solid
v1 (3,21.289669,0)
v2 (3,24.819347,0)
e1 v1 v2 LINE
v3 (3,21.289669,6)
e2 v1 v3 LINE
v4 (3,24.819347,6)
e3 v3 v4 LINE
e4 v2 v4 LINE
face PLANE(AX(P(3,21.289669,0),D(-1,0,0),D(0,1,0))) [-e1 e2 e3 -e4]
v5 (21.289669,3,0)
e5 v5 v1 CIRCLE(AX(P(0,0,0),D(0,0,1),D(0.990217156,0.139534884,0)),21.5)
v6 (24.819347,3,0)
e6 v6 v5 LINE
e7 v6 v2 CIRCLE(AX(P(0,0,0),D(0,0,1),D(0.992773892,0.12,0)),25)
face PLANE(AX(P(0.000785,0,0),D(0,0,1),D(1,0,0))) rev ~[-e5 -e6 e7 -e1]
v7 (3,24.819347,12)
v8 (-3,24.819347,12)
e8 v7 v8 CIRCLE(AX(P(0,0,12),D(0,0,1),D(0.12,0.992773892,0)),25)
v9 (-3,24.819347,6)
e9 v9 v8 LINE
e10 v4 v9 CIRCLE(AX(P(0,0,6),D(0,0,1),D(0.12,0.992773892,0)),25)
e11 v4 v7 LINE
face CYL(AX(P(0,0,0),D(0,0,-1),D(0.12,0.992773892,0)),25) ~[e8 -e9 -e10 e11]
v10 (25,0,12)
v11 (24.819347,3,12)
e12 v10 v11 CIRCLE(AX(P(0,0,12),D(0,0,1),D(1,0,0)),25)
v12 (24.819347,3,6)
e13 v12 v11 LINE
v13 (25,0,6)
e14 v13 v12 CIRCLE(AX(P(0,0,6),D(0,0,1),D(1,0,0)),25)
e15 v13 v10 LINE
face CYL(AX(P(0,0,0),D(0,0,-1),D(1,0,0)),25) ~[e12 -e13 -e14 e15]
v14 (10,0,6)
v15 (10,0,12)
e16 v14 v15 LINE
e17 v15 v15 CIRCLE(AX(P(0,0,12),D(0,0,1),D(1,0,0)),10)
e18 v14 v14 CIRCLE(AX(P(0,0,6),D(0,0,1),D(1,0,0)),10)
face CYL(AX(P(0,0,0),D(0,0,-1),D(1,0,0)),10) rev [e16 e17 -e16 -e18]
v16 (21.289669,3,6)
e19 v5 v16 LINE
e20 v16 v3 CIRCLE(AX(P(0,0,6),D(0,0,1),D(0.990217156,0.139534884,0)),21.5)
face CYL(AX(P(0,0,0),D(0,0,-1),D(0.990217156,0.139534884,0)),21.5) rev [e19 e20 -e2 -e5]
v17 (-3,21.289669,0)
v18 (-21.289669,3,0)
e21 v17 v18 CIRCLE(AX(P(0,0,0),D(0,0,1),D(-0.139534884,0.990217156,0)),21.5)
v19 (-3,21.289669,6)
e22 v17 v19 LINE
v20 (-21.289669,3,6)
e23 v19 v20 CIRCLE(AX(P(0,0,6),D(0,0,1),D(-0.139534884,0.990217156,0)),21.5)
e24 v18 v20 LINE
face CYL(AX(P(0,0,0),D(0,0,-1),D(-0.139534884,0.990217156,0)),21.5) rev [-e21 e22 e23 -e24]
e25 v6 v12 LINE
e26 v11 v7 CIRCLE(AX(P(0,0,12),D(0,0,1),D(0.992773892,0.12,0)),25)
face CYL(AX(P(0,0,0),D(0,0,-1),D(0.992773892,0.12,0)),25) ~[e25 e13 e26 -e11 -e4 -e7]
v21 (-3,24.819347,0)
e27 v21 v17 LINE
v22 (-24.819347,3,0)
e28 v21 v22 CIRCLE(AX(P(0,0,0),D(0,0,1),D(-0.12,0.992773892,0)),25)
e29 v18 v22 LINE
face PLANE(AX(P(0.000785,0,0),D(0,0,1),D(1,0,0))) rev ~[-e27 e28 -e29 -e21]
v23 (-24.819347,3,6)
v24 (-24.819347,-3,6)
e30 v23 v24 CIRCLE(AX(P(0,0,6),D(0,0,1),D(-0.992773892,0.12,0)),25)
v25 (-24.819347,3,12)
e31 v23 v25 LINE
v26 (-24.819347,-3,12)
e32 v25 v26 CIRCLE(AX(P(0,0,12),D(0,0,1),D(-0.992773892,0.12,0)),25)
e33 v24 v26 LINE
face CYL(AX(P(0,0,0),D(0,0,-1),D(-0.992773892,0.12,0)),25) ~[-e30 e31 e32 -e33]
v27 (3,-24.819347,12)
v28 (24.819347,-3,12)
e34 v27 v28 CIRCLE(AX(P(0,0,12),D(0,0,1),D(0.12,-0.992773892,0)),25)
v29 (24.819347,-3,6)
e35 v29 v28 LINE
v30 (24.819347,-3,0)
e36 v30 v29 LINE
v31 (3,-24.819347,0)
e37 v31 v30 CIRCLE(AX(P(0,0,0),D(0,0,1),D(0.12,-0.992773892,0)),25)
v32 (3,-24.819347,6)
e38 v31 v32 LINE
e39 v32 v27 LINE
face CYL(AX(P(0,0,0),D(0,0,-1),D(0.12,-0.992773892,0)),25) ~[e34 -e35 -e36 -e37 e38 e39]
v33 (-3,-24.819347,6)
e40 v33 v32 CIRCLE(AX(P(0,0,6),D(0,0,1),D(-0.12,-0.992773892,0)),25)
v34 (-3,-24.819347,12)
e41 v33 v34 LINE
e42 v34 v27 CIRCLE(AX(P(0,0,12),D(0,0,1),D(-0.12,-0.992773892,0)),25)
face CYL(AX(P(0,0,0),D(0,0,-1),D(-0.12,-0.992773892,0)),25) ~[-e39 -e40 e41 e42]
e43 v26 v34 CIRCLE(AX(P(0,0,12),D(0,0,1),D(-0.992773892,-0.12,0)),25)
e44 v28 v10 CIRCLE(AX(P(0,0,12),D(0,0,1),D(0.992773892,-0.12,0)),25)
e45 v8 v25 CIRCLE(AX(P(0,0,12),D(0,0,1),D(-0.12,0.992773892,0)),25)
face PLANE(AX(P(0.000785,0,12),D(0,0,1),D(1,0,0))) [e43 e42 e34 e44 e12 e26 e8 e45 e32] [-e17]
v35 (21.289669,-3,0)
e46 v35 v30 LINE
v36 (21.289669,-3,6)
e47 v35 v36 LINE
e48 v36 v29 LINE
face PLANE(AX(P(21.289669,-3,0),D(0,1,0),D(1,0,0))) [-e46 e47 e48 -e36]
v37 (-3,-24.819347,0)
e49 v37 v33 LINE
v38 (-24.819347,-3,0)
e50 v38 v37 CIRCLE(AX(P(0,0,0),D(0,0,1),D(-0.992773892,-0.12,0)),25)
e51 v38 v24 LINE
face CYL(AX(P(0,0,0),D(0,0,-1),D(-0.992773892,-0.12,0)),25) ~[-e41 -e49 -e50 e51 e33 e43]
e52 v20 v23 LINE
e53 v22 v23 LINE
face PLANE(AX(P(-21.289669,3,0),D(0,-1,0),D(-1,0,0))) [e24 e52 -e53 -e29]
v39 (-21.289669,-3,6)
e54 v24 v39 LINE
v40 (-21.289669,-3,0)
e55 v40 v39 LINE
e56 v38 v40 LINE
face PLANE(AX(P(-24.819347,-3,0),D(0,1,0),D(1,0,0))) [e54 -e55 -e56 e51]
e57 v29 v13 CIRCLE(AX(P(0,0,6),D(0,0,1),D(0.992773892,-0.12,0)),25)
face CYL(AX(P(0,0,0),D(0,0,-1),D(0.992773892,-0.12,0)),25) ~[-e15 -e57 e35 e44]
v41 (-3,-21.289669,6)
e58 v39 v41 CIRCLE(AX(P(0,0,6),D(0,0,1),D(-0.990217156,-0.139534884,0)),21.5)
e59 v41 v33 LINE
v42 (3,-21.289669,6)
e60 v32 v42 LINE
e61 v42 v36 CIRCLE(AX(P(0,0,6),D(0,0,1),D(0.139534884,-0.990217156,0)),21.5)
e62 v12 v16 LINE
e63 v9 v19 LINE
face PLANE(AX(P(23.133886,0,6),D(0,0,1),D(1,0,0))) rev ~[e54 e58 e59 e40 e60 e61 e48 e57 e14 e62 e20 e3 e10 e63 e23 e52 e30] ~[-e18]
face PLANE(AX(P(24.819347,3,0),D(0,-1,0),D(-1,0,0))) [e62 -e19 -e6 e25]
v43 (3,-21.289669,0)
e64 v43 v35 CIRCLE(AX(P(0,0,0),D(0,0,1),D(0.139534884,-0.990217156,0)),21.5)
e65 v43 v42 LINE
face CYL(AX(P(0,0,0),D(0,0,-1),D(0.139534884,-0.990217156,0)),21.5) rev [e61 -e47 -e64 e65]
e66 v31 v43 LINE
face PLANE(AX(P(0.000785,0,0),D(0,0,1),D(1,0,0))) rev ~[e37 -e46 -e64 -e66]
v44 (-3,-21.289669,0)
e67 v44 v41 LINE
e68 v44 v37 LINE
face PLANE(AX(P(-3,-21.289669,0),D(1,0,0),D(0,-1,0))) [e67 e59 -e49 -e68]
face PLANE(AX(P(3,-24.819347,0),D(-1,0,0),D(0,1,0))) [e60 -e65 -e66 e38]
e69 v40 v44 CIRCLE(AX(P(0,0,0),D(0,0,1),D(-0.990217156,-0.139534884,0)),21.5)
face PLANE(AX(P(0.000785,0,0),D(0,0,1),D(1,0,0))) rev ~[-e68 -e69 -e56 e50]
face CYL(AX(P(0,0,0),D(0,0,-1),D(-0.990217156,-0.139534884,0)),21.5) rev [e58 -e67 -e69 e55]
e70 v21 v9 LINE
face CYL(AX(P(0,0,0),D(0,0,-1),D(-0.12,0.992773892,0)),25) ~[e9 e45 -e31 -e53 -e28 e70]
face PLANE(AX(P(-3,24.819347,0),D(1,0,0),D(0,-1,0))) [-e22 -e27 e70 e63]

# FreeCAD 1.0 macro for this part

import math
import FreeCAD as App
import Part
import Sketcher

V = App.Vector
Q = App.Units.Quantity

doc = App.newDocument("Part")
body = doc.addObject("PartDesign::Body", "Body")

# Sketch on XY plane
sketch1 = body.newObject("Sketcher::SketchObject", "Sketch")
sketch1.AttachmentSupport = (doc.getObject("XY_Plane"), [""])
sketch1.MapMode = "FlatFace"
sketch1.addGeometry([
    Part.ArcOfCircle(Part.Circle(V(0, 0, 0), V(0, 0, 1), 25), math.radians(6.892103), math.radians(83.107897)),  # 0
    Part.ArcOfCircle(Part.Circle(V(0, 0, 0), V(0, 0, 1), 25), math.radians(83.107897), math.radians(96.892103)),  # 1
    Part.ArcOfCircle(Part.Circle(V(0, 0, 0), V(0, 0, 1), 25), math.radians(96.892103), math.radians(173.107897)),  # 2
    Part.ArcOfCircle(Part.Circle(V(0, 0, 0), V(0, 0, 1), 25), math.radians(173.107897), math.radians(186.892103)),  # 3
    Part.ArcOfCircle(Part.Circle(V(0, 0, 0), V(0, 0, 1), 25), math.radians(-173.107897), math.radians(-96.892103)),  # 4
    Part.ArcOfCircle(Part.Circle(V(0, 0, 0), V(0, 0, 1), 25), math.radians(-96.892103), math.radians(-83.107897)),  # 5
    Part.ArcOfCircle(Part.Circle(V(0, 0, 0), V(0, 0, 1), 25), math.radians(-83.107897), math.radians(-6.892103)),  # 6
    Part.ArcOfCircle(Part.Circle(V(0, 0, 0), V(0, 0, 1), 25), math.radians(-6.892103), math.radians(0)),  # 7
    Part.ArcOfCircle(Part.Circle(V(0, 0, 0), V(0, 0, 1), 25), math.radians(0), math.radians(6.892103)),  # 8
    Part.Circle(V(0, 0, 0), V(0, 0, 1), 10),  # 9
], False)
sketch1.addConstraint([
    Sketcher.Constraint("Tangent", 0, 2, 1, 1),
    Sketcher.Constraint("Tangent", 1, 2, 2, 1),
    Sketcher.Constraint("Tangent", 2, 2, 3, 1),
    Sketcher.Constraint("Tangent", 3, 2, 4, 1),
    Sketcher.Constraint("Tangent", 4, 2, 5, 1),
    Sketcher.Constraint("Tangent", 5, 2, 6, 1),
    Sketcher.Constraint("Tangent", 6, 2, 7, 1),
    Sketcher.Constraint("Tangent", 7, 2, 8, 1),
    Sketcher.Constraint("Tangent", 8, 2, 0, 1),
    Sketcher.Constraint("Coincident", 0, 3, -1, 1),
    Sketcher.Constraint("Coincident", 2, 3, -1, 1),
    Sketcher.Constraint("Coincident", 4, 3, -1, 1),
    Sketcher.Constraint("Coincident", 6, 3, -1, 1),
    Sketcher.Constraint("Coincident", 9, 3, -1, 1),
    Sketcher.Constraint("PointOnObject", 7, 2, -1),
    Sketcher.Constraint("Horizontal", 0, 2, 1, 2),
    Sketcher.Constraint("Horizontal", 4, 2, 5, 2),
    Sketcher.Constraint("Horizontal", 3, 2, 6, 2),
    Sketcher.Constraint("Horizontal", 2, 2, 8, 2),
    Sketcher.Constraint("Vertical", 2, 2, 3, 2),
    Sketcher.Constraint("Vertical", 1, 2, 4, 2),
    Sketcher.Constraint("Diameter", 9, Q("20 mm")),
    Sketcher.Constraint("Radius", 0, Q("25 mm")),
    Sketcher.Constraint("DistanceX", -1, 1, 0, 2, Q("3 mm")),
    Sketcher.Constraint("DistanceY", -1, 1, 2, 2, Q("3 mm")),
])
pad1 = body.newObject("PartDesign::Pad", "Pad")
pad1.Profile = sketch1
pad1.Length = 12

# Sketch on XY plane
sketch2 = body.newObject("Sketcher::SketchObject", "Sketch001")
sketch2.AttachmentSupport = (doc.getObject("XY_Plane"), [""])
sketch2.MapMode = "FlatFace"
sketch2.addGeometry([
    Part.ArcOfCircle(Part.Circle(V(0, 0, 0), V(0, 0, 1), 21.5), math.radians(0), math.radians(8.020933)),  # 0
    Part.ArcOfCircle(Part.Circle(V(0, 0, 0), V(0, 0, 1), 21.5), math.radians(8.020933), math.radians(81.979067)),  # 1
    Part.ArcOfCircle(Part.Circle(V(0, 0, 0), V(0, 0, 1), 21.5), math.radians(81.979067), math.radians(98.020933)),  # 2
    Part.ArcOfCircle(Part.Circle(V(0, 0, 0), V(0, 0, 1), 21.5), math.radians(98.020933), math.radians(171.979067)),  # 3
    Part.ArcOfCircle(Part.Circle(V(0, 0, 0), V(0, 0, 1), 21.5), math.radians(171.979067), math.radians(188.020933)),  # 4
    Part.ArcOfCircle(Part.Circle(V(0, 0, 0), V(0, 0, 1), 21.5), math.radians(-171.979067), math.radians(-98.020933)),  # 5
    Part.ArcOfCircle(Part.Circle(V(0, 0, 0), V(0, 0, 1), 21.5), math.radians(-98.020933), math.radians(-81.979067)),  # 6
    Part.ArcOfCircle(Part.Circle(V(0, 0, 0), V(0, 0, 1), 21.5), math.radians(-81.979067), math.radians(-8.020933)),  # 7
    Part.ArcOfCircle(Part.Circle(V(0, 0, 0), V(0, 0, 1), 21.5), math.radians(-8.020933), math.radians(0)),  # 8
    Part.Circle(V(0, 0, 0), V(0, 0, 1), 10),  # 9
], False)
sketch2.addConstraint([
    Sketcher.Constraint("Tangent", 0, 2, 1, 1),
    Sketcher.Constraint("Tangent", 1, 2, 2, 1),
    Sketcher.Constraint("Tangent", 2, 2, 3, 1),
    Sketcher.Constraint("Tangent", 3, 2, 4, 1),
    Sketcher.Constraint("Tangent", 4, 2, 5, 1),
    Sketcher.Constraint("Tangent", 5, 2, 6, 1),
    Sketcher.Constraint("Tangent", 6, 2, 7, 1),
    Sketcher.Constraint("Tangent", 7, 2, 8, 1),
    Sketcher.Constraint("Tangent", 8, 2, 0, 1),
    Sketcher.Constraint("Coincident", 0, 3, -1, 1),
    Sketcher.Constraint("Coincident", 2, 3, -1, 1),
    Sketcher.Constraint("Coincident", 4, 3, -1, 1),
    Sketcher.Constraint("Coincident", 6, 3, -1, 1),
    Sketcher.Constraint("Coincident", 9, 3, -1, 1),
    Sketcher.Constraint("PointOnObject", 8, 2, -1),
    Sketcher.Constraint("Horizontal", 1, 2, 2, 2),
    Sketcher.Constraint("Horizontal", 0, 2, 3, 2),
    Sketcher.Constraint("Horizontal", 5, 2, 6, 2),
    Sketcher.Constraint("Horizontal", 4, 2, 7, 2),
    Sketcher.Constraint("Vertical", 3, 2, 4, 2),
    Sketcher.Constraint("Vertical", 2, 2, 5, 2),
    Sketcher.Constraint("Diameter", 9, Q("20 mm")),
    Sketcher.Constraint("Radius", 0, Q("21.5 mm")),
    Sketcher.Constraint("DistanceY", -1, 1, 0, 2, Q("3 mm")),
    Sketcher.Constraint("DistanceX", -1, 1, 1, 2, Q("3 mm")),
])
pocket1 = body.newObject("PartDesign::Pocket", "Pocket")
pocket1.Profile = sketch2
pocket1.Length = 6
pocket1.Reversed = True

# Sketch on XY plane
sketch3 = body.newObject("Sketcher::SketchObject", "Sketch002")
sketch3.AttachmentSupport = (doc.getObject("XY_Plane"), [""])
sketch3.MapMode = "FlatFace"
sketch3.addGeometry([
    Part.LineSegment(V(3, 21.289669, 0), V(3, 24.819347, 0)),  # 0
    Part.ArcOfCircle(Part.Circle(V(0, 0, 0), V(0, 0, 1), 25), math.radians(83.107897), math.radians(96.892103)),  # 1
    Part.LineSegment(V(-3, 24.819347, 0), V(-3, 21.289669, 0)),  # 2
    Part.ArcOfCircle(Part.Circle(V(0, 0, 0), V(0, 0, 1), 21.5), math.radians(81.979067), math.radians(98.020933)),  # 3
    Part.ArcOfCircle(Part.Circle(V(0, 0, 0), V(0, 0, 1), 25), math.radians(-96.892103), math.radians(-83.107897)),  # 4
    Part.LineSegment(V(3, -24.819347, 0), V(3, -21.289669, 0)),  # 5
    Part.ArcOfCircle(Part.Circle(V(0, 0, 0), V(0, 0, 1), 21.5), math.radians(-98.020933), math.radians(-81.979067)),  # 6
    Part.LineSegment(V(-3, -21.289669, 0), V(-3, -24.819347, 0)),  # 7
    Part.LineSegment(V(-21.289669, 3, 0), V(-24.819347, 3, 0)),  # 8
    Part.ArcOfCircle(Part.Circle(V(0, 0, 0), V(0, 0, 1), 25), math.radians(173.107897), math.radians(186.892103)),  # 9
    Part.LineSegment(V(-24.819347, -3, 0), V(-21.289669, -3, 0)),  # 10
    Part.ArcOfCircle(Part.Circle(V(0, 0, 0), V(0, 0, 1), 21.5), math.radians(171.979067), math.radians(188.020933)),  # 11
    Part.ArcOfCircle(Part.Circle(V(0, 0, 0), V(0, 0, 1), 25), math.radians(-6.892103), math.radians(0)),  # 12
    Part.ArcOfCircle(Part.Circle(V(0, 0, 0), V(0, 0, 1), 25), math.radians(0), math.radians(6.892103)),  # 13
    Part.LineSegment(V(24.819347, 3, 0), V(21.289669, 3, 0)),  # 14
    Part.ArcOfCircle(Part.Circle(V(0, 0, 0), V(0, 0, 1), 21.5), math.radians(0), math.radians(8.020933)),  # 15
    Part.ArcOfCircle(Part.Circle(V(0, 0, 0), V(0, 0, 1), 21.5), math.radians(-8.020933), math.radians(0)),  # 16
    Part.LineSegment(V(21.289669, -3, 0), V(24.819347, -3, 0)),  # 17
], False)
sketch3.addConstraint([
    Sketcher.Constraint("Coincident", 0, 2, 1, 1),
    Sketcher.Constraint("Coincident", 1, 2, 2, 1),
    Sketcher.Constraint("Coincident", 2, 2, 3, 2),
    Sketcher.Constraint("Coincident", 3, 1, 0, 1),
    Sketcher.Constraint("Coincident", 4, 2, 5, 1),
    Sketcher.Constraint("Coincident", 5, 2, 6, 2),
    Sketcher.Constraint("Coincident", 6, 1, 7, 1),
    Sketcher.Constraint("Coincident", 7, 2, 4, 1),
    Sketcher.Constraint("Coincident", 8, 2, 9, 1),
    Sketcher.Constraint("Coincident", 9, 2, 10, 1),
    Sketcher.Constraint("Coincident", 10, 2, 11, 2),
    Sketcher.Constraint("Coincident", 11, 1, 8, 1),
    Sketcher.Constraint("Tangent", 12, 2, 13, 1),
    Sketcher.Constraint("Coincident", 13, 2, 14, 1),
    Sketcher.Constraint("Coincident", 14, 2, 15, 2),
    Sketcher.Constraint("Tangent", 15, 1, 16, 2),
    Sketcher.Constraint("Coincident", 16, 1, 17, 1),
    Sketcher.Constraint("Coincident", 17, 2, 12, 1),
    Sketcher.Constraint("Vertical", 0),
    Sketcher.Constraint("Vertical", 2),
    Sketcher.Constraint("Vertical", 5),
    Sketcher.Constraint("Vertical", 7),
    Sketcher.Constraint("Horizontal", 8),
    Sketcher.Constraint("Horizontal", 10),
    Sketcher.Constraint("Horizontal", 14),
    Sketcher.Constraint("Horizontal", 17),
    Sketcher.Constraint("Coincident", 1, 3, -1, 1),
    Sketcher.Constraint("Coincident", 3, 3, -1, 1),
    Sketcher.Constraint("Coincident", 4, 3, -1, 1),
    Sketcher.Constraint("Coincident", 6, 3, -1, 1),
    Sketcher.Constraint("Coincident", 9, 3, -1, 1),
    Sketcher.Constraint("Coincident", 11, 3, -1, 1),
    Sketcher.Constraint("Coincident", 12, 3, -1, 1),
    Sketcher.Constraint("Coincident", 15, 3, -1, 1),
    Sketcher.Constraint("Equal", 1, 4),
    Sketcher.Constraint("Equal", 3, 6),
    Sketcher.Constraint("Equal", 4, 9),
    Sketcher.Constraint("Equal", 6, 11),
    Sketcher.Constraint("Equal", 9, 12),
    Sketcher.Constraint("Equal", 12, 13),
    Sketcher.Constraint("Equal", 11, 15),
    Sketcher.Constraint("Equal", 15, 16),
    Sketcher.Constraint("PointOnObject", 12, 2, -1),
    Sketcher.Constraint("PointOnObject", 15, 1, -1),
    Sketcher.Constraint("Horizontal", 0, 2, 1, 2),
    Sketcher.Constraint("Horizontal", 5, 2, 6, 1),
    Sketcher.Constraint("Horizontal", 11, 1, 13, 2),
    Sketcher.Constraint("Horizontal", 10, 2, 16, 1),
    Sketcher.Constraint("Vertical", 3, 1, 4, 2),
    Sketcher.Constraint("Vertical", 8, 2, 9, 2),
    Sketcher.Constraint("Equal", 17, 0),
    Sketcher.Constraint("Radius", 1, Q("25 mm")),
    Sketcher.Constraint("Radius", 3, Q("21.5 mm")),
    Sketcher.Constraint("DistanceX", -1, 1, 0, 2, Q("3 mm")),
])
pocket2 = body.newObject("PartDesign::Pocket", "Pocket001")
pocket2.Profile = sketch3
pocket2.Length = 6
pocket2.Reversed = True

doc.recompute()
